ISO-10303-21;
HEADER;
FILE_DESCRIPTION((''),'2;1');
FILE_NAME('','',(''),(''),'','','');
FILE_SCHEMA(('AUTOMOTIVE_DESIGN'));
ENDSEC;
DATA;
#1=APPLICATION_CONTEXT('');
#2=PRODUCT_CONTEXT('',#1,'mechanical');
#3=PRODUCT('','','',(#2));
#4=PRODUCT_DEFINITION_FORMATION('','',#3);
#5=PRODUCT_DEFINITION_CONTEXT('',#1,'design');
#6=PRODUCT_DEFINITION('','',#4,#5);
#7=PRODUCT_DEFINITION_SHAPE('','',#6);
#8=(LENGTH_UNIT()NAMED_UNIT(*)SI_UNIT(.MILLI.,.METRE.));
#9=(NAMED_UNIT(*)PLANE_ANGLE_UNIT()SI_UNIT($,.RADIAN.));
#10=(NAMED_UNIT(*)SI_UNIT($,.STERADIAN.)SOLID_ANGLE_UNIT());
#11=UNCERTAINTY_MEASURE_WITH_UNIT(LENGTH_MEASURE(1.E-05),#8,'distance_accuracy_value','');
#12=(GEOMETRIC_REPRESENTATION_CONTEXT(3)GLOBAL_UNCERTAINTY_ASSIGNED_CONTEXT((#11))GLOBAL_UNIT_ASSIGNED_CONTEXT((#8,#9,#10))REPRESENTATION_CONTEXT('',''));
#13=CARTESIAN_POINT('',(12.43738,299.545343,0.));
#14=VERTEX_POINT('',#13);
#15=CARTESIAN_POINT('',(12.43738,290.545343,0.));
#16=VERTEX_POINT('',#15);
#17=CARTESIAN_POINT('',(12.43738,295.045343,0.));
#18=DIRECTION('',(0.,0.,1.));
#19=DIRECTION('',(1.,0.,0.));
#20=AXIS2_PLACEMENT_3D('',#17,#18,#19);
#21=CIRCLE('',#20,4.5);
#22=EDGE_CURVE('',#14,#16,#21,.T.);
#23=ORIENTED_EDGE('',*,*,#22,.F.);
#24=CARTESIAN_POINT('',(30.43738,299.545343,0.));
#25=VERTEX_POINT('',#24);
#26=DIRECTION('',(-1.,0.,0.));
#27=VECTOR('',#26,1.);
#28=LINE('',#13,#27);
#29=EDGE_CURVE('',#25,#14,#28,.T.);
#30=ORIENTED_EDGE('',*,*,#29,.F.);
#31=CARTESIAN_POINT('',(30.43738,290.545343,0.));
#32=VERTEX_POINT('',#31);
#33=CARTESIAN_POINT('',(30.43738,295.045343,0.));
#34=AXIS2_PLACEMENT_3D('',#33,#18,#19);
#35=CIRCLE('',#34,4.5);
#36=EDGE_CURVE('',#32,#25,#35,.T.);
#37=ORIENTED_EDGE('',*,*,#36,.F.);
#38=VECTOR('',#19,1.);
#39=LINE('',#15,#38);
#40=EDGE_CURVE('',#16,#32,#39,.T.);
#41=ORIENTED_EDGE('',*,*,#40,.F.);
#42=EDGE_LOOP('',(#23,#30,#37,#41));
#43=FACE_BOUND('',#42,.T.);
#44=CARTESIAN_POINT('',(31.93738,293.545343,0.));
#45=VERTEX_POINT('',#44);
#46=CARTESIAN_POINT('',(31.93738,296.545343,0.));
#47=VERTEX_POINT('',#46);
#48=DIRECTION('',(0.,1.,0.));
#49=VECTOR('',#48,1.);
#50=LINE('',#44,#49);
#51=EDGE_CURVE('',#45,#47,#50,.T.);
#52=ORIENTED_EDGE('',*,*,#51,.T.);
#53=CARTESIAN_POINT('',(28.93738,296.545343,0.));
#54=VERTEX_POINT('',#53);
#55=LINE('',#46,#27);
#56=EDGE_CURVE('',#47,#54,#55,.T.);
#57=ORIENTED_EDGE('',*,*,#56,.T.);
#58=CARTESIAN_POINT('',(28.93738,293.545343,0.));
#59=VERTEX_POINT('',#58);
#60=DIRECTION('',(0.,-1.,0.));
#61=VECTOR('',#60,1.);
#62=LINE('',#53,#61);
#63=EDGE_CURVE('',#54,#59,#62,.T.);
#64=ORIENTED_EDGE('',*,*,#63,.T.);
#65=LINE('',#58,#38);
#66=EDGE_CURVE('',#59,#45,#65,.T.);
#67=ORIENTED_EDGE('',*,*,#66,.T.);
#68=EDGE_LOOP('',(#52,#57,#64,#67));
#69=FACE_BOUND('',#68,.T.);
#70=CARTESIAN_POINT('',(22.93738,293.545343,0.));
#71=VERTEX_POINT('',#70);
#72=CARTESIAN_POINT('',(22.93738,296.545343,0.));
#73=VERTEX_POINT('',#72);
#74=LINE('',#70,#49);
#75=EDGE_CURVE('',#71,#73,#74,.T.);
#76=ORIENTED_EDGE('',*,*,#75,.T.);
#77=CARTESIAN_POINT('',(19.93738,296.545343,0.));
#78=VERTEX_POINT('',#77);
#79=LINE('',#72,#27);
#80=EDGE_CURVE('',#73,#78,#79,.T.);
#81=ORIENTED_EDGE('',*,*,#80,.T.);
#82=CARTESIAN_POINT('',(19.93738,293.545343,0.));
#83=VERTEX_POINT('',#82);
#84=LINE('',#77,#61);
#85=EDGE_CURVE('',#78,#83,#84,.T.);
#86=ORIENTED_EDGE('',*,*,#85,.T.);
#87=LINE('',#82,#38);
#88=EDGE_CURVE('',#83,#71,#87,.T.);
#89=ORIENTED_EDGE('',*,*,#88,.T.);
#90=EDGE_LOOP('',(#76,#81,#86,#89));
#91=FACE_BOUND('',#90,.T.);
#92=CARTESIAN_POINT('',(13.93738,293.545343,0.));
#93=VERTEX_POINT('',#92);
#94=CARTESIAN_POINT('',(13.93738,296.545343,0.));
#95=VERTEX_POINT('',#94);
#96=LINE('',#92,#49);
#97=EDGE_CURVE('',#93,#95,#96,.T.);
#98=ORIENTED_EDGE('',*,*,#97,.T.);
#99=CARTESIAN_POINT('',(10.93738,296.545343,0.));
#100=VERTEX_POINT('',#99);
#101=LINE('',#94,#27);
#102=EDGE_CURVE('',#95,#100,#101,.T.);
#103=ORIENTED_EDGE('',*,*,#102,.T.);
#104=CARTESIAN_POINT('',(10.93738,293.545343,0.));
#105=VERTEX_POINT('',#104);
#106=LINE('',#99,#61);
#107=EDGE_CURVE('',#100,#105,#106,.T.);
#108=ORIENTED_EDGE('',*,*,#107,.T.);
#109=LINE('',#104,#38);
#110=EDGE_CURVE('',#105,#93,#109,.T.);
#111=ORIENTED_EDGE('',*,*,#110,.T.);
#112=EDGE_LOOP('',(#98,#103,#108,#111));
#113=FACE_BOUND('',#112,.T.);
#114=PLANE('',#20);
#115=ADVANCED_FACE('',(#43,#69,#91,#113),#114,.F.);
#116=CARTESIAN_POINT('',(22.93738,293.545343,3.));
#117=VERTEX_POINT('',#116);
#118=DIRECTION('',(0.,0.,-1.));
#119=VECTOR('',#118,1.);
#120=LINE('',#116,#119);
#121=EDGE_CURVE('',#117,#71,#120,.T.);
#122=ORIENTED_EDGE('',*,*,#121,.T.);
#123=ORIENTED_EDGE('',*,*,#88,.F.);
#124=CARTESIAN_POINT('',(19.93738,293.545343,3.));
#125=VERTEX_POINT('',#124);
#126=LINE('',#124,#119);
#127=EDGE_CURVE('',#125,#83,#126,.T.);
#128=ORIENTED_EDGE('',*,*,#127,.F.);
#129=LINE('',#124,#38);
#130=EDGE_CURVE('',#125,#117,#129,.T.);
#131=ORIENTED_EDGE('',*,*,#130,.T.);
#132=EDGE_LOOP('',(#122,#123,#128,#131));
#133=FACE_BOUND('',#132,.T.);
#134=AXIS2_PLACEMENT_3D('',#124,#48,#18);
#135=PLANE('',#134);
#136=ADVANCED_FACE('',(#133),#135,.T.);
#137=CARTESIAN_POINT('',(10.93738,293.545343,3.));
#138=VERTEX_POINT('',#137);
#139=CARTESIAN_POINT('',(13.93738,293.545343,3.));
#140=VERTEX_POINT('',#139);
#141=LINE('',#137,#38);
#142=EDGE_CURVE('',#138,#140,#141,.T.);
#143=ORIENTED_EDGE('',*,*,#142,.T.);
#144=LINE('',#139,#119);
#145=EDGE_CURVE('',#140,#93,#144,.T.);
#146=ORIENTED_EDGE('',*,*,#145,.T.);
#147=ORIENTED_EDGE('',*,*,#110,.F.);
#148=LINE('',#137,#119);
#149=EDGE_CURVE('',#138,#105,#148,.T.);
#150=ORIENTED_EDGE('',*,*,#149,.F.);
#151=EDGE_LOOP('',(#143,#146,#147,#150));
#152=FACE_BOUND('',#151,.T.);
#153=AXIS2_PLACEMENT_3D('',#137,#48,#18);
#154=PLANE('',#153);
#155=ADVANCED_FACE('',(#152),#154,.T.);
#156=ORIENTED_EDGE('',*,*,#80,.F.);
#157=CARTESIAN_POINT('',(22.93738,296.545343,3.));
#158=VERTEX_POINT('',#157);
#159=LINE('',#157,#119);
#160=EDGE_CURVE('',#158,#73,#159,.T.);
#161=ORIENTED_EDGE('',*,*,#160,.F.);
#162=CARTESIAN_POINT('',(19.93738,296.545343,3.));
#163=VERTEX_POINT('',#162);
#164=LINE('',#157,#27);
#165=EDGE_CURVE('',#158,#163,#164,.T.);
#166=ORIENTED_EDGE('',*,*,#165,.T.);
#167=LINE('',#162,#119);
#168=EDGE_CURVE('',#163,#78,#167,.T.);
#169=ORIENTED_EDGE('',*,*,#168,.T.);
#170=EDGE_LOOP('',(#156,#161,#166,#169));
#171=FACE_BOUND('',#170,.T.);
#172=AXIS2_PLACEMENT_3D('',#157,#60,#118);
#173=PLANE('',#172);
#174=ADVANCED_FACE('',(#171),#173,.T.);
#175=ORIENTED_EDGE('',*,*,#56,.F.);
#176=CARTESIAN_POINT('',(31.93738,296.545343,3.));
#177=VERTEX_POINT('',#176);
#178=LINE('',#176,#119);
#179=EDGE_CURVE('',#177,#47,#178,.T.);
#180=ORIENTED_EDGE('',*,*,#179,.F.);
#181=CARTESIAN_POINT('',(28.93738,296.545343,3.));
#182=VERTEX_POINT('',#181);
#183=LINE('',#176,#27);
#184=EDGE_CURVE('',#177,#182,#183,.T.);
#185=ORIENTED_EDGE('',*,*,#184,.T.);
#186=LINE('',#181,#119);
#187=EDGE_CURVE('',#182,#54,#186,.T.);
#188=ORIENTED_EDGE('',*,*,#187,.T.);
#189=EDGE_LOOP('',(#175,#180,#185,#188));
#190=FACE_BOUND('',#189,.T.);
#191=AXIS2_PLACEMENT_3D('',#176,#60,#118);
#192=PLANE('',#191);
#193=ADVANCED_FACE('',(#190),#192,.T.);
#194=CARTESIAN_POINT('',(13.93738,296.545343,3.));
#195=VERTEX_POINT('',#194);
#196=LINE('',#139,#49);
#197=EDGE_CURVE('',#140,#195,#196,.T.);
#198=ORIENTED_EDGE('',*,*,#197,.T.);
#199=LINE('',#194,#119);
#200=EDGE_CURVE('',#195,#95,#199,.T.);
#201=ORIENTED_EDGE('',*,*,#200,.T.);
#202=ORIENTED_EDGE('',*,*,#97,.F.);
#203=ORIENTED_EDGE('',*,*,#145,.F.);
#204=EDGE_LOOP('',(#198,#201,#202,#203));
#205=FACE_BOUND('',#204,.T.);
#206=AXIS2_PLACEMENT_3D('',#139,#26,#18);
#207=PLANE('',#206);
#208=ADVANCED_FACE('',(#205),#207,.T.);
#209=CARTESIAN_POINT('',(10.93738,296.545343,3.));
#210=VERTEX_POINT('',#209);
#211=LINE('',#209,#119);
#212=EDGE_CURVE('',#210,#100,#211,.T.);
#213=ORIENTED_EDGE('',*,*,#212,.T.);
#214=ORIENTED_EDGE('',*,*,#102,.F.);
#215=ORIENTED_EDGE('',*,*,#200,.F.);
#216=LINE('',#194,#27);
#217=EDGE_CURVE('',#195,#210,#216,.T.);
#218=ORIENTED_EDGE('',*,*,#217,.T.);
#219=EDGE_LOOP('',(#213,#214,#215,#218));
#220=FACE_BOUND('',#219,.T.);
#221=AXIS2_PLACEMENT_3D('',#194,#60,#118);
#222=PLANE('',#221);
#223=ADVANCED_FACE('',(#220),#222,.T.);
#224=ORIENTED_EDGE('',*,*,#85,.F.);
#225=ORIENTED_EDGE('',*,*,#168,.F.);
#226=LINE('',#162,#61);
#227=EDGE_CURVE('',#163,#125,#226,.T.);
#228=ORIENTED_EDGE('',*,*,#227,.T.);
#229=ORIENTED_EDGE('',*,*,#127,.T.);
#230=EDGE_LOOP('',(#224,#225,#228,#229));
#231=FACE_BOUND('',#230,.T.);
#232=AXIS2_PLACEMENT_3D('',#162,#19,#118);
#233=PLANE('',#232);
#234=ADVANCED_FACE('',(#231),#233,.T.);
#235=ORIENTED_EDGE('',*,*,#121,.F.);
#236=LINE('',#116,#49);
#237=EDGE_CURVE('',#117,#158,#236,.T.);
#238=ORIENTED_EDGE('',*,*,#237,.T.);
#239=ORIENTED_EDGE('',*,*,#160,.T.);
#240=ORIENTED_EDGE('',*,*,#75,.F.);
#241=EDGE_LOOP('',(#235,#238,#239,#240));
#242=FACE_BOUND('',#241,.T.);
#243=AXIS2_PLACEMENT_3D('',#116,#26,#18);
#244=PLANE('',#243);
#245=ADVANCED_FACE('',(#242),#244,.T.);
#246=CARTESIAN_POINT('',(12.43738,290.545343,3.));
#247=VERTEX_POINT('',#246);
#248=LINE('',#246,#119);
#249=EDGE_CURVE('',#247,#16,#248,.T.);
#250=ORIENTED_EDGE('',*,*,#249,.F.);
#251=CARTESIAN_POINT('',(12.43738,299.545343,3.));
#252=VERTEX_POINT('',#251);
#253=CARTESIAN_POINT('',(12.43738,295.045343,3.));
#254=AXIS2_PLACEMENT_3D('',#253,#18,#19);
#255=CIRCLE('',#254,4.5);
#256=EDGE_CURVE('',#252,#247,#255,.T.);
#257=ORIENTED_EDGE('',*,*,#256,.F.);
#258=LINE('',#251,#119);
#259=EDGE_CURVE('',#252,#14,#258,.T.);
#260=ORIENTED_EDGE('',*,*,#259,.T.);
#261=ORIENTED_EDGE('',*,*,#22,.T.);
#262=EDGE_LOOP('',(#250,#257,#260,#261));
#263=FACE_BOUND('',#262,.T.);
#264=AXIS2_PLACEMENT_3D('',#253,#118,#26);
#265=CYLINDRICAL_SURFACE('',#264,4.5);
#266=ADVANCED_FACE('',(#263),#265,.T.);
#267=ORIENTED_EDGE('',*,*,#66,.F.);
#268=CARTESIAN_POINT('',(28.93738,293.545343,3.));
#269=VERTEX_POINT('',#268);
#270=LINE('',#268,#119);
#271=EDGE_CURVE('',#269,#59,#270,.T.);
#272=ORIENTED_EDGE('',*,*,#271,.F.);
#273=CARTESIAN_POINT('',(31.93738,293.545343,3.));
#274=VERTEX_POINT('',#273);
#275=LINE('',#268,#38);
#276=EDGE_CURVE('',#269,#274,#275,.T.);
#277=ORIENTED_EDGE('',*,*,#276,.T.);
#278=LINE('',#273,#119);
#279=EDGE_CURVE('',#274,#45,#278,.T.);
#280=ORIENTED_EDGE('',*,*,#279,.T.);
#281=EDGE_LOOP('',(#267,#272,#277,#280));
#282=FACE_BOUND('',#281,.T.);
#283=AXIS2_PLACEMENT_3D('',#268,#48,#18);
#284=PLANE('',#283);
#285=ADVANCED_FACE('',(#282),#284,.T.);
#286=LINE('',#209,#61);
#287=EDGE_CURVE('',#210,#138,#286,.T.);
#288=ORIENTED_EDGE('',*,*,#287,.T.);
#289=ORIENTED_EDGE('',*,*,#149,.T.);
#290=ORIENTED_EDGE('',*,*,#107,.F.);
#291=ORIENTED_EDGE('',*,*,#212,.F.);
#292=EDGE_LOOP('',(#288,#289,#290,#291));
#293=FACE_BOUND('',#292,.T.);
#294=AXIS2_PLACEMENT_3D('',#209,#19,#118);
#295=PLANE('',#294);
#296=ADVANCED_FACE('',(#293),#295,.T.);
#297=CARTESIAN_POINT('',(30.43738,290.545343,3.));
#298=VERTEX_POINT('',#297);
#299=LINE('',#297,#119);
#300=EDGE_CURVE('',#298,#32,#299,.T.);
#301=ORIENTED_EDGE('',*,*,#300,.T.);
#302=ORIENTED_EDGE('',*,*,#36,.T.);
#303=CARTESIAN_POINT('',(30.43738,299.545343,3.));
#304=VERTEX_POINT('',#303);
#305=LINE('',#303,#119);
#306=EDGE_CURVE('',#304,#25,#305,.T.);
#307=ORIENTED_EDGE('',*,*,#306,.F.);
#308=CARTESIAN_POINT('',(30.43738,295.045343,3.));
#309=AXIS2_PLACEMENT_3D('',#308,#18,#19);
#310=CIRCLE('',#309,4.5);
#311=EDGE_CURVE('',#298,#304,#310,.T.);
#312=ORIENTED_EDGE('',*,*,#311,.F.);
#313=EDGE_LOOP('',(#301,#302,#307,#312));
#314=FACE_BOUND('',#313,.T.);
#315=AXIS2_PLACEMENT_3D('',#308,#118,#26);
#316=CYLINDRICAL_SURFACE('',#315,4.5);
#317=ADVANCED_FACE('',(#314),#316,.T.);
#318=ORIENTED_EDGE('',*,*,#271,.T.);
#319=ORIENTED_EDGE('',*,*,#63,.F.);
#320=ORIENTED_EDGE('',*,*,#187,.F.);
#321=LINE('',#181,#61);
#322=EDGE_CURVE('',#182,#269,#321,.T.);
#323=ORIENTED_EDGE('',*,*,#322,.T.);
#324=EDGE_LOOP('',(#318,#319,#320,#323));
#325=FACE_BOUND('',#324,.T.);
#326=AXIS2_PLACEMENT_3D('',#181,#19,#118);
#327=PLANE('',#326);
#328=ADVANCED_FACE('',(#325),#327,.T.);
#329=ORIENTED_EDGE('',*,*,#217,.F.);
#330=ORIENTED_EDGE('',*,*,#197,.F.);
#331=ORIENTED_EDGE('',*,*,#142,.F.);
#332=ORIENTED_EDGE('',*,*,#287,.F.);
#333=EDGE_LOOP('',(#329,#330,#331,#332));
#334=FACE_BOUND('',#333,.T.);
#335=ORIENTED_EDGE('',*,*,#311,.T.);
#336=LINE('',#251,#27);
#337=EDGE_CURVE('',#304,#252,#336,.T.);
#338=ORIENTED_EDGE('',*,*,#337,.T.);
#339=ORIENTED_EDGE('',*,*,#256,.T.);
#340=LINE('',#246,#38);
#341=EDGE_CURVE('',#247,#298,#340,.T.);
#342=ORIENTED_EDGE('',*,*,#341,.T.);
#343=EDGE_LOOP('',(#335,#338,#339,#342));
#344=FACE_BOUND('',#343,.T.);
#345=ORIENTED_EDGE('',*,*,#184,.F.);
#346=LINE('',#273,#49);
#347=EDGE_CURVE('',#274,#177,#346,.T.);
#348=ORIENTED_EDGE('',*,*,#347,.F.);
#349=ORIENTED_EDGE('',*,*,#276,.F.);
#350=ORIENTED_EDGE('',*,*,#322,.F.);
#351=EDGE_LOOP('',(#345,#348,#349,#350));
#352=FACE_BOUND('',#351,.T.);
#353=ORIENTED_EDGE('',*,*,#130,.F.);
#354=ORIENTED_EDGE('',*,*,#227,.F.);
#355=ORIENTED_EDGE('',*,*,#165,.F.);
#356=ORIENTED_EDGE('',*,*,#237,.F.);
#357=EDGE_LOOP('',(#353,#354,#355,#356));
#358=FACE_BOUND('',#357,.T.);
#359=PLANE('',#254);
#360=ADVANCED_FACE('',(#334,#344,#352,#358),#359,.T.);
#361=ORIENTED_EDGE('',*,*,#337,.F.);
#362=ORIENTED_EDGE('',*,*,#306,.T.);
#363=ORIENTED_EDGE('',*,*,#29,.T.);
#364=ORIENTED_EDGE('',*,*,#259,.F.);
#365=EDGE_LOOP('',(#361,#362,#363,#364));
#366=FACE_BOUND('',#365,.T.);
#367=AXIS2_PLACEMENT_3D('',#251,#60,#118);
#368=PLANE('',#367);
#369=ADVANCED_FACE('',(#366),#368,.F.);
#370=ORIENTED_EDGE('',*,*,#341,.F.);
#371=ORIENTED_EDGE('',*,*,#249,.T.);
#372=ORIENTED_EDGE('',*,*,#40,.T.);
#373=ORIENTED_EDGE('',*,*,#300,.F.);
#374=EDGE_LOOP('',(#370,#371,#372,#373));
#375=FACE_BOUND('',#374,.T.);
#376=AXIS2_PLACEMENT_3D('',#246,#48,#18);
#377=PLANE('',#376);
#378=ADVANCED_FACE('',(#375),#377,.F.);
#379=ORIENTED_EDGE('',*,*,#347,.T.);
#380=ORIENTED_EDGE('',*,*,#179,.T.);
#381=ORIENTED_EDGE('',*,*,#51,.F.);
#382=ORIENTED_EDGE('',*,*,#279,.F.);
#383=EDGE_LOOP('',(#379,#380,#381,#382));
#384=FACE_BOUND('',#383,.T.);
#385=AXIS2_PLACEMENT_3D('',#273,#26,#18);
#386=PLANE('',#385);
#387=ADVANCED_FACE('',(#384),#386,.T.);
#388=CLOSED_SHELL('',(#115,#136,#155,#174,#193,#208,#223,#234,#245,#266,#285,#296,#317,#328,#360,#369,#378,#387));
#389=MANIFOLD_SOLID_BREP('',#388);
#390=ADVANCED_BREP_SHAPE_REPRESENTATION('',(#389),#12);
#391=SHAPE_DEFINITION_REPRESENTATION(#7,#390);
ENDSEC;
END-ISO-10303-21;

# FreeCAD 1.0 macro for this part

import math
import FreeCAD as App
import Part
import Sketcher

V = App.Vector


def add_polygon(sketch, points):
    """Adds a closed chain of lines whose ends are joined by coincident constraints."""
    first, n = sketch.GeometryCount, len(points)
    for a, b in zip(points, points[1:] + points[:1]):
        sketch.addGeometry(Part.LineSegment(App.Vector(*a, 0), App.Vector(*b, 0)), False)
    for i in range(n):
        sketch.addConstraint(Sketcher.Constraint("Coincident", first + i, 2, first + (i + 1) % n, 1))

doc = App.newDocument("Part")
body = doc.addObject("PartDesign::Body", "Body")

# Sketch on XY plane
sketch1 = doc.addObject("Sketcher::SketchObject", "Sketch")
body.addObject(sketch1)
sketch1.AttachmentSupport = (doc.XY_Plane, [""])
sketch1.MapMode = "FlatFace"
sketch1.addGeometry(Part.LineSegment(V(30.4, 299.5, 0), V(12.4, 299.5, 0)), False)  # 0
sketch1.addGeometry(Part.ArcOfCircle(Part.Circle(V(12.4, 295, 0), V(0, 0, 1), 4.5), math.radians(90), math.radians(270)), False)  # 1
sketch1.addGeometry(Part.LineSegment(V(12.4, 290.5, 0), V(30.4, 290.5, 0)), False)  # 2
sketch1.addGeometry(Part.ArcOfCircle(Part.Circle(V(30.4, 295, 0), V(0, 0, 1), 4.5), math.radians(-90), math.radians(90)), False)  # 3
add_polygon(sketch1, [(28.9, 293.5), (28.9, 296.5), (31.9, 296.5), (31.9, 293.5)])  # lines 4-7
add_polygon(sketch1, [(19.9, 293.5), (19.9, 296.5), (22.9, 296.5), (22.9, 293.5)])  # lines 8-11
add_polygon(sketch1, [(10.9, 293.5), (10.9, 296.5), (13.9, 296.5), (13.9, 293.5)])  # lines 12-15
sketch1.addConstraint([
    Sketcher.Constraint("Tangent", 0, 2, 1, 1),
    Sketcher.Constraint("Tangent", 1, 2, 2, 1),
    Sketcher.Constraint("Tangent", 2, 2, 3, 1),
    Sketcher.Constraint("Tangent", 3, 2, 0, 1),
    Sketcher.Constraint("Horizontal", 0),
    Sketcher.Constraint("Horizontal", 2),
    Sketcher.Constraint("Vertical", 4),
    Sketcher.Constraint("Horizontal", 5),
    Sketcher.Constraint("Vertical", 6),
    Sketcher.Constraint("Horizontal", 7),
    Sketcher.Constraint("Vertical", 8),
    Sketcher.Constraint("Horizontal", 9),
    Sketcher.Constraint("Vertical", 10),
    Sketcher.Constraint("Horizontal", 11),
    Sketcher.Constraint("Vertical", 12),
    Sketcher.Constraint("Horizontal", 13),
    Sketcher.Constraint("Vertical", 14),
    Sketcher.Constraint("Horizontal", 15),
    Sketcher.Constraint("Horizontal", 5, 2, 8, 2),
    Sketcher.Constraint("Horizontal", 7, 2, 10, 2),
    Sketcher.Constraint("Horizontal", 9, 2, 12, 2),
    Sketcher.Constraint("Horizontal", 11, 2, 14, 2),
    Sketcher.Constraint("Equal", 7, 9),
    Sketcher.Constraint("Equal", 11, 13),
    Sketcher.Constraint("Equal", 15, 4),
    Sketcher.Constraint("Radius", 1, 4.5),
    Sketcher.Constraint("DistanceX", 0, 2, 0, 1, 18.0),
    Sketcher.Constraint("DistanceX", 5, 1, 5, 2, 3.0),
    Sketcher.Constraint("DistanceY", 4, 2, 3, 2, 3.0),
    Sketcher.Constraint("DistanceX", 8, 2, 4, 2, 9.0),
    Sketcher.Constraint("DistanceX", 12, 2, 8, 2, 9.0),
    Sketcher.Constraint("DistanceX", 4, 2, 3, 3, 1.5),
    Sketcher.Constraint("DistanceX", -1, 1, 1, 3, 12.43738),
    Sketcher.Constraint("DistanceY", -1, 1, 1, 3, 295.045343),
])
pad1 = doc.addObject("PartDesign::Pad", "Pad")
body.addObject(pad1)
pad1.Profile = sketch1
pad1.Length = 3

doc.recompute()
